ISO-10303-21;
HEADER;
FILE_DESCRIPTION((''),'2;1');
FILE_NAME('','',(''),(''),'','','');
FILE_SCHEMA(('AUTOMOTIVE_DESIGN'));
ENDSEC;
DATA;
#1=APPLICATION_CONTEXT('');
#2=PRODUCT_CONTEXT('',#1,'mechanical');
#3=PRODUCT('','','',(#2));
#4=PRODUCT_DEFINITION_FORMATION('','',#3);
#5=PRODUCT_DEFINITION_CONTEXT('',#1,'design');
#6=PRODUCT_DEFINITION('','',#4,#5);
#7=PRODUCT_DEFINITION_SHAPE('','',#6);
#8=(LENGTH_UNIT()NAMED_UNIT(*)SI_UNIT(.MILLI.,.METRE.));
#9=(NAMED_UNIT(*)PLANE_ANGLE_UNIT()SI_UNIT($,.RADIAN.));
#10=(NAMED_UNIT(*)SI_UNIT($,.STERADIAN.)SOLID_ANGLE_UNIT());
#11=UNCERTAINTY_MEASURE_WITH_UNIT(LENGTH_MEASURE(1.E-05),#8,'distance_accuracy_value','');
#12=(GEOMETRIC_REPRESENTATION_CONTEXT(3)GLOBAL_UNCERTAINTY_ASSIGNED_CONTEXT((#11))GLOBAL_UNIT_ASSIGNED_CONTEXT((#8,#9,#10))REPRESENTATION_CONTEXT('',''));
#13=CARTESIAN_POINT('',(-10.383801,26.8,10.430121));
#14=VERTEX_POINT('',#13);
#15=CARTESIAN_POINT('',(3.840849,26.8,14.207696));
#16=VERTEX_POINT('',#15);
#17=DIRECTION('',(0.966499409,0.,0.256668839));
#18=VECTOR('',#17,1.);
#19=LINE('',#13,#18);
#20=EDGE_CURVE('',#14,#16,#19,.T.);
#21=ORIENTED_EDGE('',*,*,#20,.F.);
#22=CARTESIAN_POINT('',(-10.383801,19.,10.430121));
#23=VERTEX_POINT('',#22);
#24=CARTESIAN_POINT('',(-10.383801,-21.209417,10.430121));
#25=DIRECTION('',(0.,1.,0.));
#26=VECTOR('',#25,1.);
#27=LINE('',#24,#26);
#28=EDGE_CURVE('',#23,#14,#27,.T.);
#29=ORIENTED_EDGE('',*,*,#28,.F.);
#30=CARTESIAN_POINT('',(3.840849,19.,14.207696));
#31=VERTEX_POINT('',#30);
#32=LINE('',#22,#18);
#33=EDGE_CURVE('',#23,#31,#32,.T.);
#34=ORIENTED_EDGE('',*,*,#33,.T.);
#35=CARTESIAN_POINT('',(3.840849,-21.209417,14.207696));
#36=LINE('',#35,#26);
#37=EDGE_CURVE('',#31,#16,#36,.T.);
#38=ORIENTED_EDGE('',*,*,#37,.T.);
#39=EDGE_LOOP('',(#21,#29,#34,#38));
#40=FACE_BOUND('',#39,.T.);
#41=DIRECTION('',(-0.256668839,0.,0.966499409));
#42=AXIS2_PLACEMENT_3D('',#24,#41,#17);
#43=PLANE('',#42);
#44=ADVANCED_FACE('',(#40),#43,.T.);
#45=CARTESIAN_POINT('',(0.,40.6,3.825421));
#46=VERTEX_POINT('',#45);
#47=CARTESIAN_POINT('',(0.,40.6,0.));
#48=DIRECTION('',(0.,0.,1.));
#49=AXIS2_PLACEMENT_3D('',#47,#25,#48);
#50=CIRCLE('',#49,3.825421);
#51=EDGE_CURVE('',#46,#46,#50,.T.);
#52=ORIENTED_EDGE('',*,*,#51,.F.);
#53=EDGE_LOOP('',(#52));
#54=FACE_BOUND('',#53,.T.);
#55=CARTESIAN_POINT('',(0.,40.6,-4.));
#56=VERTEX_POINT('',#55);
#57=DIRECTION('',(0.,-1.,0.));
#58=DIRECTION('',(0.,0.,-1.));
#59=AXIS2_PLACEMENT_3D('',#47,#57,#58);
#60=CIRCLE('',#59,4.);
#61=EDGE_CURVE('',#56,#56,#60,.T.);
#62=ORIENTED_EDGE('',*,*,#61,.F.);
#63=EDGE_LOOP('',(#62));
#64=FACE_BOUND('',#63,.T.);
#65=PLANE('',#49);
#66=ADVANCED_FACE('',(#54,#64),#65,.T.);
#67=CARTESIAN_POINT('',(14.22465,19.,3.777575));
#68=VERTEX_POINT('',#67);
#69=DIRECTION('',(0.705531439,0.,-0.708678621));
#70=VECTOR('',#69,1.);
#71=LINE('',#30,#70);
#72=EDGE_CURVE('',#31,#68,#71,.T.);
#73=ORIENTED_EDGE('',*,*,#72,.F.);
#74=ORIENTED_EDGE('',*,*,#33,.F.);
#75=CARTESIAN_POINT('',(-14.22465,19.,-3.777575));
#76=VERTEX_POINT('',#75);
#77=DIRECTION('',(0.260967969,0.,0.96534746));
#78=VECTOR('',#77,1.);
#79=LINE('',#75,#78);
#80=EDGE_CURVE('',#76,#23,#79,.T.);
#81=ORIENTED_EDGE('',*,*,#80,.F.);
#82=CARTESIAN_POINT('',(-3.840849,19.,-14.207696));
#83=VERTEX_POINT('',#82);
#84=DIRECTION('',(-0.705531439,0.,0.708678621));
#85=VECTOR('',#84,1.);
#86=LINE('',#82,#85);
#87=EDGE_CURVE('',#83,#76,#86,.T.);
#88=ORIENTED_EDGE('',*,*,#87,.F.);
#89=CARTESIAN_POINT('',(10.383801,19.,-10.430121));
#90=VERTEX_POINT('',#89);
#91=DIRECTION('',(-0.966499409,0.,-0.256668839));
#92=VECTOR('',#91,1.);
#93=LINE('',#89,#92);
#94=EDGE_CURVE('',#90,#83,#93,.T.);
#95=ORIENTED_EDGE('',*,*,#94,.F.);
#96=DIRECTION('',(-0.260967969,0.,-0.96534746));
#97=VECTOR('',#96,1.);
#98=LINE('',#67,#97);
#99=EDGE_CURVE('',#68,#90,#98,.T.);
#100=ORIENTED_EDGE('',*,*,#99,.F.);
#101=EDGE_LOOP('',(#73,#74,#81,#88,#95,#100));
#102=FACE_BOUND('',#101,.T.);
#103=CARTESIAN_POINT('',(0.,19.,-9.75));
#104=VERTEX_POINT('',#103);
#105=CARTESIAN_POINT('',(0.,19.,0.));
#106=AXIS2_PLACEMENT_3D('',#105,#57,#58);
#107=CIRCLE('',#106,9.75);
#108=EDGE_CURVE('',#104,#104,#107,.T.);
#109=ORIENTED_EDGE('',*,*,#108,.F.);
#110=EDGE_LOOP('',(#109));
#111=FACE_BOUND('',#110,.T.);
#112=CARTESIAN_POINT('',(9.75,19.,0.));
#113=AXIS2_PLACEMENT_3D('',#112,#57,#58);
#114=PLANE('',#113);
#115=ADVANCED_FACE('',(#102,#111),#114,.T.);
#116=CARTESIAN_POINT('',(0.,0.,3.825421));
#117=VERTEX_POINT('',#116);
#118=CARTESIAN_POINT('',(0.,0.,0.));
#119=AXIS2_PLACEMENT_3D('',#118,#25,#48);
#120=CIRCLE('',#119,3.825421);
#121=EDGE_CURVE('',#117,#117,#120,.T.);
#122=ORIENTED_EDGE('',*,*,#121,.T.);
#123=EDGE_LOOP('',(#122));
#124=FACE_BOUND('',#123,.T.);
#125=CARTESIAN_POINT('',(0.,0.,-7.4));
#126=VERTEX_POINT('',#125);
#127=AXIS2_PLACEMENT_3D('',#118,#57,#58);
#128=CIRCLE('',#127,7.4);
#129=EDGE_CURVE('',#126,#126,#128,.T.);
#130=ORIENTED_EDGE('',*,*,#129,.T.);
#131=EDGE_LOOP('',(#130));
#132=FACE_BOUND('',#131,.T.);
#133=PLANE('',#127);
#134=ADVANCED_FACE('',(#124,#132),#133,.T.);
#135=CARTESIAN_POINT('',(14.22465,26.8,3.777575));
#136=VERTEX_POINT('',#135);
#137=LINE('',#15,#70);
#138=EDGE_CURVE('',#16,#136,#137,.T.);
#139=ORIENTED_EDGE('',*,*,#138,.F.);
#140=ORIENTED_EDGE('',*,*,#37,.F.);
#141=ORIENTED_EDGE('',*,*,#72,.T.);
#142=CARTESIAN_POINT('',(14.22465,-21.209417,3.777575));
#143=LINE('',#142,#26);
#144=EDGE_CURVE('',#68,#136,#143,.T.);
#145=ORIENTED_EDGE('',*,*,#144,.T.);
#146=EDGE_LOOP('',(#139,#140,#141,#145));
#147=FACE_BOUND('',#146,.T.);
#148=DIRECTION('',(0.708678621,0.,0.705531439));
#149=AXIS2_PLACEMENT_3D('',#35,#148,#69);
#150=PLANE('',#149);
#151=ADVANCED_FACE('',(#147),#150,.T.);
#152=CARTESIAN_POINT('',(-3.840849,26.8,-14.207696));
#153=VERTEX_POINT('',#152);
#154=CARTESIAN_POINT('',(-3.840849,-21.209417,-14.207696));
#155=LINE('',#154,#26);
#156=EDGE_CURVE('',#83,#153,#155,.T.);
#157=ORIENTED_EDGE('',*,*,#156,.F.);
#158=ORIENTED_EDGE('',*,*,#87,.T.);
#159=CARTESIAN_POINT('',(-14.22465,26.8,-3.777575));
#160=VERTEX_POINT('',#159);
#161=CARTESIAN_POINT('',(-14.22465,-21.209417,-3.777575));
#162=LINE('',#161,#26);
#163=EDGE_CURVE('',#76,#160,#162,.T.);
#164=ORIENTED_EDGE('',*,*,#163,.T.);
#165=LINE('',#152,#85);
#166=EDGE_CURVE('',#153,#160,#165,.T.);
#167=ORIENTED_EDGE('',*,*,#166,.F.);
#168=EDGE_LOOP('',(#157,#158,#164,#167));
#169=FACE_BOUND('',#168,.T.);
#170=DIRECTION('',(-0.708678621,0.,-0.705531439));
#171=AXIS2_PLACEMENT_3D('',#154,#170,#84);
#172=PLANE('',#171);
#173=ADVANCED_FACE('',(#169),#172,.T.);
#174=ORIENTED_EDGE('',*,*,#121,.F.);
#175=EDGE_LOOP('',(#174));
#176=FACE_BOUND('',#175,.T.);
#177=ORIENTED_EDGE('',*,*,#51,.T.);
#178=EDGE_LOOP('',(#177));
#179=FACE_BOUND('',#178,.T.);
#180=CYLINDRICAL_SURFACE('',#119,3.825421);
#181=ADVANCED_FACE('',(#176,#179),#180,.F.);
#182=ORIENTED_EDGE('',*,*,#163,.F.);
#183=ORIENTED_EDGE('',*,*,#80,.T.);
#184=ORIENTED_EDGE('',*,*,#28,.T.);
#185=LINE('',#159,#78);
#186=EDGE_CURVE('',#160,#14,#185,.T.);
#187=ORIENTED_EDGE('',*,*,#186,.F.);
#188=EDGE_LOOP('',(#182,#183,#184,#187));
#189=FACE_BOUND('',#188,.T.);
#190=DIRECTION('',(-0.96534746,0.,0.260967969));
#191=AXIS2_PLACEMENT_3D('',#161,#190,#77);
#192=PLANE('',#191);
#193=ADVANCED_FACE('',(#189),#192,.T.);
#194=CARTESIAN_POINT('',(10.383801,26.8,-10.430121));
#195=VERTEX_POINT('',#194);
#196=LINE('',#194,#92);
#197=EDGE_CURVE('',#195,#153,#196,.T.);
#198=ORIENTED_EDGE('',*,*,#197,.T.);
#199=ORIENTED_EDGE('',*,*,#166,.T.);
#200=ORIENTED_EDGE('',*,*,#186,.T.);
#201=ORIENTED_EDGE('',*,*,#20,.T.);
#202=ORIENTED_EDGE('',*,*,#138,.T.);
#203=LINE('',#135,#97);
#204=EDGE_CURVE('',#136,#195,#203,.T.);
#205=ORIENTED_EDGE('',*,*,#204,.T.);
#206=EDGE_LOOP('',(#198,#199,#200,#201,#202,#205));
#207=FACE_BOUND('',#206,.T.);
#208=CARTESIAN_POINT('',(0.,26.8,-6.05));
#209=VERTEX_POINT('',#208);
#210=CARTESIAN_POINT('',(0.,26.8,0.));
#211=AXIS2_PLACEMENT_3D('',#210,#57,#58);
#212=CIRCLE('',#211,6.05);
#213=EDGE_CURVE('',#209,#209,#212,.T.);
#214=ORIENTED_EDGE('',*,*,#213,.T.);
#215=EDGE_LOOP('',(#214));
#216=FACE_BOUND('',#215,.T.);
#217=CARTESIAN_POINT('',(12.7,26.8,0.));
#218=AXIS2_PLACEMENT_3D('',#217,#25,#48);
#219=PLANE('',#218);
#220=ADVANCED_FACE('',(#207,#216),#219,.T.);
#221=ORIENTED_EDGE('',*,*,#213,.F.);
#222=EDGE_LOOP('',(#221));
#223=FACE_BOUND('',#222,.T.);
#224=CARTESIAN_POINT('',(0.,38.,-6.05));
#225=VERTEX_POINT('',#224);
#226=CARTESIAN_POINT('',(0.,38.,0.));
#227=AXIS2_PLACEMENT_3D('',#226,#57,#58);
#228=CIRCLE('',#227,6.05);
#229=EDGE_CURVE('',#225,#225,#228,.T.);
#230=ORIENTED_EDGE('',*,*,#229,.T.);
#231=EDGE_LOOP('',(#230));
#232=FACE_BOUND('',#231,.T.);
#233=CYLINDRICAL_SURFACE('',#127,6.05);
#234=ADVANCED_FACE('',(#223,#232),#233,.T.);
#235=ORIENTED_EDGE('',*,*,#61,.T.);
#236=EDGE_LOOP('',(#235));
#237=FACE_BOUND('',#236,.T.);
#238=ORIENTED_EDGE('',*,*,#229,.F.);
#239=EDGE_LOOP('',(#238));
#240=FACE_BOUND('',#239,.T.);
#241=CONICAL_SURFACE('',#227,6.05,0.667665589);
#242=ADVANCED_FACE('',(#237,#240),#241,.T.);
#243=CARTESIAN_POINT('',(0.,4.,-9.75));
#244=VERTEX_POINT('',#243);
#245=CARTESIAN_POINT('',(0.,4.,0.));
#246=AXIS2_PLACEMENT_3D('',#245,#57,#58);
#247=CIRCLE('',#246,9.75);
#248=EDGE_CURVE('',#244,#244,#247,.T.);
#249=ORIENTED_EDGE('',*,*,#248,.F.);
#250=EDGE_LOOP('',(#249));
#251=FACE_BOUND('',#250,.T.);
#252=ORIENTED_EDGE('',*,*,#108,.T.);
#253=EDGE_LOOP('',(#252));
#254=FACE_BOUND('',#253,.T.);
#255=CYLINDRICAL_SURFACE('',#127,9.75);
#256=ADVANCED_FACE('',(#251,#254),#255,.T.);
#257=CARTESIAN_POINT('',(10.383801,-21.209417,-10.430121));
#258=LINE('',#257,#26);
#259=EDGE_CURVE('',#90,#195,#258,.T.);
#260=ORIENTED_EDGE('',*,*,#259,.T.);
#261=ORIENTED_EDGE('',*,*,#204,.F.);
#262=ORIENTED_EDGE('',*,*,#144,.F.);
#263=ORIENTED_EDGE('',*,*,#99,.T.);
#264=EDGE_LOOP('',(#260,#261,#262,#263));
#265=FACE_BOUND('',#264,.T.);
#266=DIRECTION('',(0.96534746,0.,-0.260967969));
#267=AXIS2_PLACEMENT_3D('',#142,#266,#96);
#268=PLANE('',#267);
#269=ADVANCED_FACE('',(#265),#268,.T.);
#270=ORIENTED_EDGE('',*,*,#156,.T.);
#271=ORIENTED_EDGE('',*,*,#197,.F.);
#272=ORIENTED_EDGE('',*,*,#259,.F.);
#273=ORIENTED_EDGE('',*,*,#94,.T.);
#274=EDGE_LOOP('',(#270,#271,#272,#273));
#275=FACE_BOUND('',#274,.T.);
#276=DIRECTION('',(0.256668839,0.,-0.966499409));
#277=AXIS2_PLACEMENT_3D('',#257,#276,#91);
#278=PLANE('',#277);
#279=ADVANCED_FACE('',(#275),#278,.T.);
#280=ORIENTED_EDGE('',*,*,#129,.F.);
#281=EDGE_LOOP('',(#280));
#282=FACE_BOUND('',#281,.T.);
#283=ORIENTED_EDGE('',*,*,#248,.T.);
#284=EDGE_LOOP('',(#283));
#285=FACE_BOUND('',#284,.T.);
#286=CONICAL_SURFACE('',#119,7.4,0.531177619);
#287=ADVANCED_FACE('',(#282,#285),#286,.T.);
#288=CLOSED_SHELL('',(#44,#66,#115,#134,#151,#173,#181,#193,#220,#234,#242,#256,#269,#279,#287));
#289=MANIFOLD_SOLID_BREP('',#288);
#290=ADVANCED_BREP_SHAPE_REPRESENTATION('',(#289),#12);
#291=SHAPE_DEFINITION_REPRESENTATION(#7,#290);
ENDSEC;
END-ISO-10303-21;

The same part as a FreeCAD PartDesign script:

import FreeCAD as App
import Part
import Sketcher

V = App.Vector

doc = App.newDocument("Part")
params = doc.addObject("Spreadsheet::Sheet", "Params")
for row, (alias, value) in enumerate([
    ("sketch1_width", "4 mm"),
    ("sketch1_height", "15 mm"),
    ("sketch1_width2", "7.4 mm"),
    ("sketch1_height2", "40.6 mm"),
    ("sketch1_height3", "7.8 mm"),
    ("revolution_angle", "360 deg"),
    ("pad1_length", "7.8 mm"),
], start=1):
    params.set(f"A{row}", alias)
    params.set(f"B{row}", "=" + value)
    params.setAlias(f"B{row}", alias)

body = doc.addObject("PartDesign::Body", "Body")

# Sketch on XY plane
sketch1 = body.newObject("Sketcher::SketchObject", "Sketch")
sketch1.AttachmentSupport = (doc.getObject("XY_Plane"), [""])
sketch1.MapMode = "FlatFace"
sketch1.addGeometry(Part.LineSegment(V(0, 40.6, 0), V(0, 0, 0)), False)
sketch1.addGeometry(Part.LineSegment(V(0, 0, 0), V(7.4, 0, 0)), False)
sketch1.addGeometry(Part.LineSegment(V(7.4, 0, 0), V(9.8, 4, 0)), False)
sketch1.addGeometry(Part.LineSegment(V(9.8, 4, 0), V(9.8, 19, 0)), False)
sketch1.addGeometry(Part.LineSegment(V(9.8, 19, 0), V(12.7, 19, 0)), False)
sketch1.addGeometry(Part.LineSegment(V(12.7, 19, 0), V(12.7, 26.8, 0)), False)
sketch1.addGeometry(Part.LineSegment(V(12.7, 26.8, 0), V(6, 26.8, 0)), False)
sketch1.addGeometry(Part.LineSegment(V(6, 26.8, 0), V(6, 38, 0)), False)
sketch1.addGeometry(Part.LineSegment(V(6, 38, 0), V(4, 40.6, 0)), False)
sketch1.addGeometry(Part.LineSegment(V(4, 40.6, 0), V(0, 40.6, 0)), False)
sketch1.addConstraint(Sketcher.Constraint("Coincident", 0, 2, 1, 1))
sketch1.addConstraint(Sketcher.Constraint("Coincident", 1, 2, 2, 1))
sketch1.addConstraint(Sketcher.Constraint("Coincident", 2, 2, 3, 1))
sketch1.addConstraint(Sketcher.Constraint("Coincident", 3, 2, 4, 1))
sketch1.addConstraint(Sketcher.Constraint("Coincident", 4, 2, 5, 1))
sketch1.addConstraint(Sketcher.Constraint("Coincident", 5, 2, 6, 1))
sketch1.addConstraint(Sketcher.Constraint("Coincident", 6, 2, 7, 1))
sketch1.addConstraint(Sketcher.Constraint("Coincident", 7, 2, 8, 1))
sketch1.addConstraint(Sketcher.Constraint("Coincident", 8, 2, 9, 1))
sketch1.addConstraint(Sketcher.Constraint("Coincident", 9, 2, 0, 1))
sketch1.addConstraint(Sketcher.Constraint("Vertical", 0))
sketch1.addConstraint(Sketcher.Constraint("Horizontal", 1))
sketch1.addConstraint(Sketcher.Constraint("Vertical", 3))
sketch1.addConstraint(Sketcher.Constraint("Horizontal", 4))
sketch1.addConstraint(Sketcher.Constraint("Vertical", 5))
sketch1.addConstraint(Sketcher.Constraint("Horizontal", 6))
sketch1.addConstraint(Sketcher.Constraint("Vertical", 7))
sketch1.addConstraint(Sketcher.Constraint("Horizontal", 9))
sketch1.addConstraint(Sketcher.Constraint("Coincident", 0, 2, -1, 1))
sketch1.addConstraint(Sketcher.Constraint("DistanceX", 9, 2, 9, 1, 4.0))
sketch1.addConstraint(Sketcher.Constraint("DistanceY", 3, 1, 3, 2, 15.0))
sketch1.addConstraint(Sketcher.Constraint("DistanceX", 1, 1, 1, 2, 7.4))
sketch1.addConstraint(Sketcher.Constraint("DistanceY", 0, 2, 0, 1, 40.6))
sketch1.addConstraint(Sketcher.Constraint("DistanceY", 5, 1, 5, 2, 7.8))
sketch1.addConstraint(Sketcher.Constraint("DistanceY", 7, 1, 7, 2, 11.2))
sketch1.addConstraint(Sketcher.Constraint("DistanceY", -1, 1, 2, 2, 4.0))
sketch1.addConstraint(Sketcher.Constraint("DistanceX", 4, 1, 4, 2, 2.95))
sketch1.addConstraint(Sketcher.Constraint("DistanceX", 6, 2, 6, 1, 6.65))
sketch1.addConstraint(Sketcher.Constraint("DistanceX", -1, 1, 4, 2, 12.7))
sketch1.setExpression("Constraints[19]", "Params.sketch1_width")
sketch1.setExpression("Constraints[20]", "Params.sketch1_height")
sketch1.setExpression("Constraints[21]", "Params.sketch1_width2")
sketch1.setExpression("Constraints[22]", "Params.sketch1_height2")
sketch1.setExpression("Constraints[23]", "Params.sketch1_height3")
revolution = body.newObject("PartDesign::Revolution", "Revolution")
revolution.Profile = sketch1
revolution.ReferenceAxis = (sketch1, ["V_Axis"])
revolution.setExpression("Angle", "Params.revolution_angle")

# Sketch on XZ plane
sketch2 = body.newObject("Sketcher::SketchObject", "Sketch001")
sketch2.AttachmentSupport = (doc.getObject("XZ_Plane"), [""])
sketch2.MapMode = "FlatFace"
sketch2.AttachmentOffset = App.Placement(V(0, 0, -26.8), App.Rotation())
sketch2.addGeometry(Part.LineSegment(V(14, 4, 0), V(10, -10, 0)), False)
sketch2.addGeometry(Part.LineSegment(V(10, -10, 0), V(-4, -14, 0)), False)
sketch2.addGeometry(Part.LineSegment(V(-4, -14, 0), V(-14, -4, 0)), False)
sketch2.addGeometry(Part.LineSegment(V(-14, -4, 0), V(-10, 10, 0)), False)
sketch2.addGeometry(Part.LineSegment(V(-10, 10, 0), V(4, 14, 0)), False)
sketch2.addGeometry(Part.LineSegment(V(4, 14, 0), V(14, 4, 0)), False)
sketch2.addConstraint(Sketcher.Constraint("Coincident", 0, 2, 1, 1))
sketch2.addConstraint(Sketcher.Constraint("Coincident", 1, 2, 2, 1))
sketch2.addConstraint(Sketcher.Constraint("Coincident", 2, 2, 3, 1))
sketch2.addConstraint(Sketcher.Constraint("Coincident", 3, 2, 4, 1))
sketch2.addConstraint(Sketcher.Constraint("Coincident", 4, 2, 5, 1))
sketch2.addConstraint(Sketcher.Constraint("Coincident", 5, 2, 0, 1))
sketch2.addConstraint(Sketcher.Constraint("Symmetric", 0, 2, 3, 2, -1, 1))
sketch2.addConstraint(Sketcher.Constraint("Symmetric", 1, 2, 4, 2, -1, 1))
sketch2.addConstraint(Sketcher.Constraint("Symmetric", 2, 2, 5, 2, -1, 1))
sketch2.addConstraint(Sketcher.Constraint("Equal", 0, 1))
sketch2.addConstraint(Sketcher.Constraint("Equal", 1, 2))
sketch2.addConstraint(Sketcher.Constraint("Distance", 0, 14.717702))
sketch2.addConstraint(Sketcher.Constraint("DistanceX", -1, 1, 0, 2, 10.383801))
sketch2.addConstraint(Sketcher.Constraint("DistanceX", 2, 2, 1, 2, 10.383801))
sketch2.addConstraint(Sketcher.Constraint("DistanceX", 2, 2, 4, 2, 18.065499))
pad1 = body.newObject("PartDesign::Pad", "Pad")
pad1.Profile = sketch2
pad1.setExpression("Length", "Params.pad1_length")

# Sketch on XZ plane
sketch3 = body.newObject("Sketcher::SketchObject", "Sketch002")
sketch3.AttachmentSupport = (doc.getObject("XZ_Plane"), [""])
sketch3.MapMode = "FlatFace"
sketch3.AttachmentOffset = App.Placement(V(0, 0, -40.6), App.Rotation())
sketch3.addGeometry(Part.Circle(V(0, 0, 0), V(0, 0, 1), 3.8), False)
sketch3.addConstraint(Sketcher.Constraint("Coincident", 0, 3, -1, 1))
sketch3.addConstraint(Sketcher.Constraint("Diameter", 0, 7.650841))
pocket1 = body.newObject("PartDesign::Pocket", "Pocket")
pocket1.Profile = sketch3
pocket1.Type = "ThroughAll"
pocket1.Reversed = True

doc.recompute()
